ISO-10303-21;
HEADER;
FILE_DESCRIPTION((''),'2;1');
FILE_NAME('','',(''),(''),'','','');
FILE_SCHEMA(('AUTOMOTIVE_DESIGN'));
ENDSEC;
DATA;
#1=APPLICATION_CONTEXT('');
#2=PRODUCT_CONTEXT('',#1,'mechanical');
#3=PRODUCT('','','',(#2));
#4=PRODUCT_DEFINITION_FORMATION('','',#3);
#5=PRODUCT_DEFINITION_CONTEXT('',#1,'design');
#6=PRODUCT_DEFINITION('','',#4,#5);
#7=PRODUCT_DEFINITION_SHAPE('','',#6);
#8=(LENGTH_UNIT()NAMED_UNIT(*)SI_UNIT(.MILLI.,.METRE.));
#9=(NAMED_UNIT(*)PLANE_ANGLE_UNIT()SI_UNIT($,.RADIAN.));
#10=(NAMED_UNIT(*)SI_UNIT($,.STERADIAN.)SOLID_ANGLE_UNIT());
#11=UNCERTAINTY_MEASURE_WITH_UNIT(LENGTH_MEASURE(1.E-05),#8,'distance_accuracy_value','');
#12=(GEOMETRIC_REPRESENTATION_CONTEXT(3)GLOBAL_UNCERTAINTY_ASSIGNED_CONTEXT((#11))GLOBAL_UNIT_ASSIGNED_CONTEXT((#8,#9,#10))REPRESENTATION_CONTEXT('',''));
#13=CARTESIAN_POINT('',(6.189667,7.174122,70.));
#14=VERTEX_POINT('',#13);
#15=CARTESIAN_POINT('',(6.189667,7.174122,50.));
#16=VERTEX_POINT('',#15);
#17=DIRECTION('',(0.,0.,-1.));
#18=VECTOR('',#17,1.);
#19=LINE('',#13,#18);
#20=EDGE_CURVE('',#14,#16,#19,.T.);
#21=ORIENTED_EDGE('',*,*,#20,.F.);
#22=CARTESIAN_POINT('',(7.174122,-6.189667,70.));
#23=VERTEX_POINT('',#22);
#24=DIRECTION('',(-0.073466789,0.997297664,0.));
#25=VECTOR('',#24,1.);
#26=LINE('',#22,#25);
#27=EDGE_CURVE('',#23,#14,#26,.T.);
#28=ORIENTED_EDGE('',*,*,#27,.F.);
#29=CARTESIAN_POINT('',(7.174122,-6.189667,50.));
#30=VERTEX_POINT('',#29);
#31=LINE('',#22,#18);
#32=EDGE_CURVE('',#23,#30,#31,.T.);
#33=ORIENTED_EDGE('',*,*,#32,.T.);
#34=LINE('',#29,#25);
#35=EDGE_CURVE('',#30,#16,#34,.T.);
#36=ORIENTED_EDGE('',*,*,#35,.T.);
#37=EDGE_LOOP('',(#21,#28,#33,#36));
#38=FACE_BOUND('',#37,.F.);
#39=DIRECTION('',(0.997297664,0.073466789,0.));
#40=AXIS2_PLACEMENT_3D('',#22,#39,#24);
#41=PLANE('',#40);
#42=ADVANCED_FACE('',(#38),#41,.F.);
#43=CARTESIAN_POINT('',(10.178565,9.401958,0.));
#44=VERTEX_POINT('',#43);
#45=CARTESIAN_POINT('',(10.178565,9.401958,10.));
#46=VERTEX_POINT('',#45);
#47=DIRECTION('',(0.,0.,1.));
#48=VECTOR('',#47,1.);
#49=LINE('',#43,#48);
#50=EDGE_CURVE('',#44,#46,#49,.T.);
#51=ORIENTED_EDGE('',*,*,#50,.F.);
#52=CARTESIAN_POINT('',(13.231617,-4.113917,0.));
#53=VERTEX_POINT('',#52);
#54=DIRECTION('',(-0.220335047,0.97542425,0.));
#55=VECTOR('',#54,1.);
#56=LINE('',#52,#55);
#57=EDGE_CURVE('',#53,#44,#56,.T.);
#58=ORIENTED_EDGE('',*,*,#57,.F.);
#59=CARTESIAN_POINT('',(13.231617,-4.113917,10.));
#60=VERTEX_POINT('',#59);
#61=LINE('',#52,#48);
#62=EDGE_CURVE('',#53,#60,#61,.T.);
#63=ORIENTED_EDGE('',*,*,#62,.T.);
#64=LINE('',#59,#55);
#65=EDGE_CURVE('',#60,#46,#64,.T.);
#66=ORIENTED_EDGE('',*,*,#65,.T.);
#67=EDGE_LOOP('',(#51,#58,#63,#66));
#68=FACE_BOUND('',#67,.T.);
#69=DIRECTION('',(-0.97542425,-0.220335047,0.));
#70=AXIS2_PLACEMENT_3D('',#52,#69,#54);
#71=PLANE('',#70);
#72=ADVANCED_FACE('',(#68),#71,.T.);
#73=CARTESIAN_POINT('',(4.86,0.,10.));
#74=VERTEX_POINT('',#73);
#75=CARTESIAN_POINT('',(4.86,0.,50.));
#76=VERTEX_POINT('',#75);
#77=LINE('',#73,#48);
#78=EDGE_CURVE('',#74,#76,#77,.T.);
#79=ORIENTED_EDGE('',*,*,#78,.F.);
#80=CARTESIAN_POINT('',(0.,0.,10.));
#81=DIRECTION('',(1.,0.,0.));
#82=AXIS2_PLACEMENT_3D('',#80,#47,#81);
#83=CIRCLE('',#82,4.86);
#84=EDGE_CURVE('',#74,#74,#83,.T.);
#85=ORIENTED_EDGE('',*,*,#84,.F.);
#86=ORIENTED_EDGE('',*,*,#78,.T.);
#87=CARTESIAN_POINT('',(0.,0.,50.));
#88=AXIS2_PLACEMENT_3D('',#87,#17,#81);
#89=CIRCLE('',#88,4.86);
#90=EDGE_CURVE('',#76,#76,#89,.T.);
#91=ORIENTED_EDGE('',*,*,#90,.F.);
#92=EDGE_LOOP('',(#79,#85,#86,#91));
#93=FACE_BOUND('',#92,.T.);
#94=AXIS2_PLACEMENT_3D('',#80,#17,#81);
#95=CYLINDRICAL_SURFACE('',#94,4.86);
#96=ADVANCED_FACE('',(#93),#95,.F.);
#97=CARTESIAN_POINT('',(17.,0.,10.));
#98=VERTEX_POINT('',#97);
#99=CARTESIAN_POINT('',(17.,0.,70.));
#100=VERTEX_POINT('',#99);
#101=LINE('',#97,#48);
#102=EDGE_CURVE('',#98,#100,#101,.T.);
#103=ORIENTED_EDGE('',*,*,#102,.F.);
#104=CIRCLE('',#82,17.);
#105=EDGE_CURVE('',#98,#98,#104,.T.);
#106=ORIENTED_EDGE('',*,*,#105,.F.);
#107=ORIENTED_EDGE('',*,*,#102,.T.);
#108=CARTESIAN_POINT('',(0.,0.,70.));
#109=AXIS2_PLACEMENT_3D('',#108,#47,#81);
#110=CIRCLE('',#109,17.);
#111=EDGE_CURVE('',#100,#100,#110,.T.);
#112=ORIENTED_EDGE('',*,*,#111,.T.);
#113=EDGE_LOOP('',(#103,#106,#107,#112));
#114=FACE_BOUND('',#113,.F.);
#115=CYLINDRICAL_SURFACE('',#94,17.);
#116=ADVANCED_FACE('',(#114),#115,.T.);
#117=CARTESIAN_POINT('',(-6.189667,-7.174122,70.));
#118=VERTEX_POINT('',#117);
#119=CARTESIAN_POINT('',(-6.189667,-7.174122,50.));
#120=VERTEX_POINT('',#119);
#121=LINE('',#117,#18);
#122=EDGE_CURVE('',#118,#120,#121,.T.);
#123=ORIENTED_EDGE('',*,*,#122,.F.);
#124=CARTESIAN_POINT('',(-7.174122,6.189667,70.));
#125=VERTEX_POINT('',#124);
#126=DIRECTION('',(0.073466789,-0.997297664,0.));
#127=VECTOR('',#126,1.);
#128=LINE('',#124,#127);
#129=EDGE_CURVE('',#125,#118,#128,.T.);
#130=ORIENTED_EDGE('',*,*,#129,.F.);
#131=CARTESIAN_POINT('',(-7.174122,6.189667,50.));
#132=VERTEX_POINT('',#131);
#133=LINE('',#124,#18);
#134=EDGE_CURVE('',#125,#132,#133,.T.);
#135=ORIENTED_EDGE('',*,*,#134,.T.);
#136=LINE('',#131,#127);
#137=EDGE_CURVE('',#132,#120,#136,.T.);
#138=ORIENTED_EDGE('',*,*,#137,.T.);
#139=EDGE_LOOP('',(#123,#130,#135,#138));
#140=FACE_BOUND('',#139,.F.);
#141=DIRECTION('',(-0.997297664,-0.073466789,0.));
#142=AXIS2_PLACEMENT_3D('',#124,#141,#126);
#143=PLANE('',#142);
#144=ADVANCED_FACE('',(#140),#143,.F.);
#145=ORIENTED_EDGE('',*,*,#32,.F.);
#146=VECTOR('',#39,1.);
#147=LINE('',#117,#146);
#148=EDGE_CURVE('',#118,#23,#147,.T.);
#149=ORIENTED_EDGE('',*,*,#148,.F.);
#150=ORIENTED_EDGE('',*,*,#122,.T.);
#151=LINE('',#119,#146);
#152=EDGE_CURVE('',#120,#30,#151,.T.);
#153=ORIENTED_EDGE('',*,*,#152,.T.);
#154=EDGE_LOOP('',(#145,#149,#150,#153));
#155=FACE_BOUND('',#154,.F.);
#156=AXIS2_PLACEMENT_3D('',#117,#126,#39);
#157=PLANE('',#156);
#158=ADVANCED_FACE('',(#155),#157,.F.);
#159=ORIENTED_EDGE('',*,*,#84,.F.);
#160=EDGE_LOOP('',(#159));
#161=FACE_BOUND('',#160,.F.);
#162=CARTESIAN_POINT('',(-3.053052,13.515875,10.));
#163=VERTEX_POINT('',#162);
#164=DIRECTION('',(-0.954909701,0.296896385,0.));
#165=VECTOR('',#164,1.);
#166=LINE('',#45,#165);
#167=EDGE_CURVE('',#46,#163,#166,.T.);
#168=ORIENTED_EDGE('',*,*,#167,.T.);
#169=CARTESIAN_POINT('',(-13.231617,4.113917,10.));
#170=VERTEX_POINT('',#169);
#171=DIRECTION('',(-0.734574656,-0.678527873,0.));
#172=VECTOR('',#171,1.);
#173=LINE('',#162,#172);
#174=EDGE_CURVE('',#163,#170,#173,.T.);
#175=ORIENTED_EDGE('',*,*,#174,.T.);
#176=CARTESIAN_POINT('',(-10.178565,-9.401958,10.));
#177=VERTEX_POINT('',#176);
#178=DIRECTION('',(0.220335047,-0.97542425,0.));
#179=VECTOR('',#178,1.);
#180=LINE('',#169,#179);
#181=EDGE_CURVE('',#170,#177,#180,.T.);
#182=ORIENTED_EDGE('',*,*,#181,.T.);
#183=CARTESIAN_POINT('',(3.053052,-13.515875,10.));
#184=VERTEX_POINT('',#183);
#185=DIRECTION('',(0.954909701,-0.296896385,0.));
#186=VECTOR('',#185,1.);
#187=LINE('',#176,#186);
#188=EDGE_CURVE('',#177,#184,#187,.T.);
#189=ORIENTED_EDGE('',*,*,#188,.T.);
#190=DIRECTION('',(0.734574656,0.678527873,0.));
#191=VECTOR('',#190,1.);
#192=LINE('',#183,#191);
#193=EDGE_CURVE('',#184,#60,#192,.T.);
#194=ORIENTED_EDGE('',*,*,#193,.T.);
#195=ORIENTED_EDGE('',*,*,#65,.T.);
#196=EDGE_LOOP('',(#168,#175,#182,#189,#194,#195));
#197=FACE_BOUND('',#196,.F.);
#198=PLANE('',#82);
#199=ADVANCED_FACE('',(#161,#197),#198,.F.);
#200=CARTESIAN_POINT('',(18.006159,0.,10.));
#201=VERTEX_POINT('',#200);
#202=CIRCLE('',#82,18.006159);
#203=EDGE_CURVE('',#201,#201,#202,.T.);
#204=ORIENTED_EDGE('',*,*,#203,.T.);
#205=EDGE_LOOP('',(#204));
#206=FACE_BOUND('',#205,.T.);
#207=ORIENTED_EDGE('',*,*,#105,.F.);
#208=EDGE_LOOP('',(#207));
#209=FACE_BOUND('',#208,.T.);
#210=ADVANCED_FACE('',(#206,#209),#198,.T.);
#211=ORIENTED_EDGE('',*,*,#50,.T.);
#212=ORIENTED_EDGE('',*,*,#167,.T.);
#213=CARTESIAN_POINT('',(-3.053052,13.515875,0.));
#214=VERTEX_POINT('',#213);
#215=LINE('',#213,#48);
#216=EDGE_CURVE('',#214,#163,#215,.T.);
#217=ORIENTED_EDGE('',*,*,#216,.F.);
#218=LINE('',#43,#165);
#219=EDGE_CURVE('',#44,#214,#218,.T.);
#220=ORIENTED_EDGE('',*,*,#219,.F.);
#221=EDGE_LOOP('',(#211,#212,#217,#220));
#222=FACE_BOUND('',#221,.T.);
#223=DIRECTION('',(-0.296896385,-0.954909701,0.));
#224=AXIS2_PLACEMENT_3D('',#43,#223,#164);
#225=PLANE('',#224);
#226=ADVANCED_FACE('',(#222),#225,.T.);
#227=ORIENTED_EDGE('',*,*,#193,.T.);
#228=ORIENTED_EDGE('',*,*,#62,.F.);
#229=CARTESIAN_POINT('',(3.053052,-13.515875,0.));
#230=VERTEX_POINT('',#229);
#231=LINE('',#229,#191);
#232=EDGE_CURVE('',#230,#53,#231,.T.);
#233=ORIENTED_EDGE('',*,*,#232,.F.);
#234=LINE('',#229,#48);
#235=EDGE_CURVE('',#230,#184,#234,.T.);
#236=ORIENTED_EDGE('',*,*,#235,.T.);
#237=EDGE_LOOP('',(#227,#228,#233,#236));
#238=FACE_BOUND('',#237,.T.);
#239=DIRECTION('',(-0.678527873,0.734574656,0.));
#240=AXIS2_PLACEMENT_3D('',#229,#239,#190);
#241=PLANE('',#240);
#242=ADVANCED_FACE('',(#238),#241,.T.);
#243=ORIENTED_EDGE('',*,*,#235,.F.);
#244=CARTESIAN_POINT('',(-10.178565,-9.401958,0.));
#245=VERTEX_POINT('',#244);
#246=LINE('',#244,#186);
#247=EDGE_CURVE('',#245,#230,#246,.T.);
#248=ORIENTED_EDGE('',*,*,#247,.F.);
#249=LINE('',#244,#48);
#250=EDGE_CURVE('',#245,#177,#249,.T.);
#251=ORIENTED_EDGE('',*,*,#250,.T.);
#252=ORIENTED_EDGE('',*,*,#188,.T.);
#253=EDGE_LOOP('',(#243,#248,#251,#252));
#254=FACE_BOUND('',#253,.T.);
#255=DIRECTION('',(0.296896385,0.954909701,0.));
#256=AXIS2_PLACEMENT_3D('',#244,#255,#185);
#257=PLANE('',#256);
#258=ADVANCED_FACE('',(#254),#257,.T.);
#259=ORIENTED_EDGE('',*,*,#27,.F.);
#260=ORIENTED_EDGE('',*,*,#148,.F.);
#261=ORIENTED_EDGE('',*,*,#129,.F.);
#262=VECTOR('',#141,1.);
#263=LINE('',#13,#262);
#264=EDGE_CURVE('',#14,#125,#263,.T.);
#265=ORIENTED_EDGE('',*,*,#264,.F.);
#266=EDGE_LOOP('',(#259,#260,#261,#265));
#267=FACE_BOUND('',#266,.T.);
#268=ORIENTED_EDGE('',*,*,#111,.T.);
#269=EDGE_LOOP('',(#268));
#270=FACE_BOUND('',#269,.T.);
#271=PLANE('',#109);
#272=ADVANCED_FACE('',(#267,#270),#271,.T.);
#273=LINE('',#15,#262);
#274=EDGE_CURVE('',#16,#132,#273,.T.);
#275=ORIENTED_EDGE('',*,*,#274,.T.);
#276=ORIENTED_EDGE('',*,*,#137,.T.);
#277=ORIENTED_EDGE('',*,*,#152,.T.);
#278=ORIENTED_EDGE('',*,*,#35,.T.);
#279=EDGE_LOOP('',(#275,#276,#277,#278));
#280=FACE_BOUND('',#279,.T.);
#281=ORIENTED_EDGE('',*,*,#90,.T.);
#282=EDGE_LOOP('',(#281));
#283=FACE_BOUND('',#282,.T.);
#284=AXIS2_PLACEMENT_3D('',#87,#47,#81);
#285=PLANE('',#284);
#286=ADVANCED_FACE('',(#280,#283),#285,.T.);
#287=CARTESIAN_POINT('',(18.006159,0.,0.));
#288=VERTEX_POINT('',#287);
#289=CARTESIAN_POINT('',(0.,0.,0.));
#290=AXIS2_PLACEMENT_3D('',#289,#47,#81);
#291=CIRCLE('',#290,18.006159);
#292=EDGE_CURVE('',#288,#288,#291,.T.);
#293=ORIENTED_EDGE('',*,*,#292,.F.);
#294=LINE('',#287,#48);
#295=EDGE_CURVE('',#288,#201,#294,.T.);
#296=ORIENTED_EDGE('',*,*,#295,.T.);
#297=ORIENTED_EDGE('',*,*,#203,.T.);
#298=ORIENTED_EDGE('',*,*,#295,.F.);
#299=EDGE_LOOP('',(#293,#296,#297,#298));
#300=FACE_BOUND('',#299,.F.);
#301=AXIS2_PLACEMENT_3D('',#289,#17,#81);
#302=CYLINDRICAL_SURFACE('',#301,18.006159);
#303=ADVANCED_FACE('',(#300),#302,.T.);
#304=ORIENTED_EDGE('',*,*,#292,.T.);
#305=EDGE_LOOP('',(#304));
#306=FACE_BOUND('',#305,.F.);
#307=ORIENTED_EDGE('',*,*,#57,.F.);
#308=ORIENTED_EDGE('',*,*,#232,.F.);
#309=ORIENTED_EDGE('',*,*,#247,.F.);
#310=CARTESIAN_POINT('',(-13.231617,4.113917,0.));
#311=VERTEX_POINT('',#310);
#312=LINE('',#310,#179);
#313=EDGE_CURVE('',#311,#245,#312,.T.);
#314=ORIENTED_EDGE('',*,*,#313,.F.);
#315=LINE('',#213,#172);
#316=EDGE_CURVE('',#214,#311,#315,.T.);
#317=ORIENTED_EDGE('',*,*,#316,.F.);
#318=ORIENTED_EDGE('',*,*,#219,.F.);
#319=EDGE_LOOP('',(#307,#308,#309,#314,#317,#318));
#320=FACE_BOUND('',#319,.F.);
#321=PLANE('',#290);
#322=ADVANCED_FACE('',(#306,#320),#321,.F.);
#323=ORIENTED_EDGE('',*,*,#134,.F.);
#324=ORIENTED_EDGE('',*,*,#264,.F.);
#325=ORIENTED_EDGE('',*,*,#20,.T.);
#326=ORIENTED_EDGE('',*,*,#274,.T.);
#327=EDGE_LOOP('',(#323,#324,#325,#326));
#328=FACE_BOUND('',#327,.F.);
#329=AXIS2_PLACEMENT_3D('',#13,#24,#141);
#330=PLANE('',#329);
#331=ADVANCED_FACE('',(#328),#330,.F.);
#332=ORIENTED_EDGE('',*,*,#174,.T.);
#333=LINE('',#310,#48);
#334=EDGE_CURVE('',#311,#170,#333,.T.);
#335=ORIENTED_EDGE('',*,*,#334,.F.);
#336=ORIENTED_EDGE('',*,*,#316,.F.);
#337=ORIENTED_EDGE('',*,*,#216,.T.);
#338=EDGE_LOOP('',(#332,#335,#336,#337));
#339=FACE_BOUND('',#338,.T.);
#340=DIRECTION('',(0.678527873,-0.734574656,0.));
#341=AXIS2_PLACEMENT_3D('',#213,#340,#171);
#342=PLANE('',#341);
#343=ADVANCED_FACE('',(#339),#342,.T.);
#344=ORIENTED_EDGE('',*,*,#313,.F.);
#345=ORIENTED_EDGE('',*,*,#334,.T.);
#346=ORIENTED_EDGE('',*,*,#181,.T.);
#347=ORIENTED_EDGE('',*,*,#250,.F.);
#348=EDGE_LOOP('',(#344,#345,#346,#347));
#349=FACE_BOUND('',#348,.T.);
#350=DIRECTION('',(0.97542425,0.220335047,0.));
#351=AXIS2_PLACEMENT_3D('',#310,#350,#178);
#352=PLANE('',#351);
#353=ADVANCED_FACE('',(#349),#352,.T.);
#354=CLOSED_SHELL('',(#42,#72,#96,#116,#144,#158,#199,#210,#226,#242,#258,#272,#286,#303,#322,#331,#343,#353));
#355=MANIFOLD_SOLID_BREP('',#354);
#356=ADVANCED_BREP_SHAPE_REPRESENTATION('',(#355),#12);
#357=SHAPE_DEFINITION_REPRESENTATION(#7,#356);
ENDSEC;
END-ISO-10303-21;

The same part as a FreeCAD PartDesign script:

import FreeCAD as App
import Part
import Sketcher

V = App.Vector


def add_polygon(sketch, points):
    """Adds a closed chain of lines whose ends are joined by coincident constraints."""
    first, n = sketch.GeometryCount, len(points)
    for a, b in zip(points, points[1:] + points[:1]):
        sketch.addGeometry(Part.LineSegment(App.Vector(*a, 0), App.Vector(*b, 0)), False)
    for i in range(n):
        sketch.addConstraint(Sketcher.Constraint("Coincident", first + i, 2, first + (i + 1) % n, 1))

doc = App.newDocument("Part")
body = doc.addObject("PartDesign::Body", "Body")

sketch1 = body.newObject("Sketcher::SketchObject", "Sketch")
sketch1.AttachmentSupport = (doc.getObject("XY_Plane"), [""])
sketch1.MapMode = "FlatFace"
sketch1.addGeometry(Part.Circle(V(0, 0, 0), V(0, 0, 1), 18), False)
add_polygon(sketch1, [(-10, -9), (-13, 4), (-3, 14), (10, 9), (13, -4), (3, -14)])
sketch1.addConstraint([
    Sketcher.Constraint("Coincident", 0, 3, -1, 1),
    Sketcher.Constraint("Symmetric", 1, 2, 4, 2, -1, 1),
    Sketcher.Constraint("Symmetric", 2, 2, 5, 2, -1, 1),
    Sketcher.Constraint("Symmetric", 3, 2, 6, 2, -1, 1),
    Sketcher.Constraint("Equal", 1, 2),
    Sketcher.Constraint("Equal", 2, 3),
    Sketcher.Constraint("Diameter", 0, 36.012318),
    Sketcher.Constraint("DistanceX", 1, 2, 3, 2, 23.410182),
    Sketcher.Constraint("DistanceY", 1, 2, 3, 2, 5.288041),
    Sketcher.Constraint("DistanceX", 3, 2, 4, 2, 3.053052),
    Sketcher.Constraint("DistanceX", 2, 2, 4, 2, 16.284669),
])
pad1 = body.newObject("PartDesign::Pad", "Pad")
pad1.Profile = sketch1
pad1.Length = 10

sketch2 = body.newObject("Sketcher::SketchObject", "Sketch001")
sketch2.AttachmentSupport = (doc.getObject("XY_Plane"), [""])
sketch2.MapMode = "FlatFace"
sketch2.AttachmentOffset = App.Placement(V(0, 0, 10), App.Rotation())
sketch2.addGeometry([
    Part.Circle(V(0, 0, 0), V(0, 0, 1), 17),
    Part.Circle(V(0, 0, 0), V(0, 0, 1), 4.9),
], False)
sketch2.addConstraint([
    Sketcher.Constraint("Coincident", 0, 3, -1, 1),
    Sketcher.Constraint("Coincident", 1, 3, -1, 1),
    Sketcher.Constraint("Diameter", 0, 34.0),
    Sketcher.Constraint("Diameter", 1, 9.72),
])
pad2 = body.newObject("PartDesign::Pad", "Pad001")
pad2.Profile = sketch2
pad2.Length = 60

sketch3 = body.newObject("Sketcher::SketchObject", "Sketch002")
sketch3.AttachmentSupport = (doc.getObject("XY_Plane"), [""])
sketch3.MapMode = "FlatFace"
sketch3.AttachmentOffset = App.Placement(V(0, 0, 70), App.Rotation())
add_polygon(sketch3, [(-7, 6), (-6, -7), (7, -6), (6, 7)])
sketch3.addConstraint([
    Sketcher.Constraint("Symmetric", 0, 2, 2, 2, -1, 1),
    Sketcher.Constraint("Symmetric", 1, 2, 3, 2, -1, 1),
    Sketcher.Constraint("Perpendicular", 0, 1),
    Sketcher.Constraint("Equal", 0, 1),
    Sketcher.Constraint("Distance", 0, 13.4),
    Sketcher.Constraint("DistanceY", 0, 2, -1, 1, 7.174122),
])
pocket1 = body.newObject("PartDesign::Pocket", "Pocket")
pocket1.Profile = sketch3
pocket1.Length = 20

doc.recompute()
